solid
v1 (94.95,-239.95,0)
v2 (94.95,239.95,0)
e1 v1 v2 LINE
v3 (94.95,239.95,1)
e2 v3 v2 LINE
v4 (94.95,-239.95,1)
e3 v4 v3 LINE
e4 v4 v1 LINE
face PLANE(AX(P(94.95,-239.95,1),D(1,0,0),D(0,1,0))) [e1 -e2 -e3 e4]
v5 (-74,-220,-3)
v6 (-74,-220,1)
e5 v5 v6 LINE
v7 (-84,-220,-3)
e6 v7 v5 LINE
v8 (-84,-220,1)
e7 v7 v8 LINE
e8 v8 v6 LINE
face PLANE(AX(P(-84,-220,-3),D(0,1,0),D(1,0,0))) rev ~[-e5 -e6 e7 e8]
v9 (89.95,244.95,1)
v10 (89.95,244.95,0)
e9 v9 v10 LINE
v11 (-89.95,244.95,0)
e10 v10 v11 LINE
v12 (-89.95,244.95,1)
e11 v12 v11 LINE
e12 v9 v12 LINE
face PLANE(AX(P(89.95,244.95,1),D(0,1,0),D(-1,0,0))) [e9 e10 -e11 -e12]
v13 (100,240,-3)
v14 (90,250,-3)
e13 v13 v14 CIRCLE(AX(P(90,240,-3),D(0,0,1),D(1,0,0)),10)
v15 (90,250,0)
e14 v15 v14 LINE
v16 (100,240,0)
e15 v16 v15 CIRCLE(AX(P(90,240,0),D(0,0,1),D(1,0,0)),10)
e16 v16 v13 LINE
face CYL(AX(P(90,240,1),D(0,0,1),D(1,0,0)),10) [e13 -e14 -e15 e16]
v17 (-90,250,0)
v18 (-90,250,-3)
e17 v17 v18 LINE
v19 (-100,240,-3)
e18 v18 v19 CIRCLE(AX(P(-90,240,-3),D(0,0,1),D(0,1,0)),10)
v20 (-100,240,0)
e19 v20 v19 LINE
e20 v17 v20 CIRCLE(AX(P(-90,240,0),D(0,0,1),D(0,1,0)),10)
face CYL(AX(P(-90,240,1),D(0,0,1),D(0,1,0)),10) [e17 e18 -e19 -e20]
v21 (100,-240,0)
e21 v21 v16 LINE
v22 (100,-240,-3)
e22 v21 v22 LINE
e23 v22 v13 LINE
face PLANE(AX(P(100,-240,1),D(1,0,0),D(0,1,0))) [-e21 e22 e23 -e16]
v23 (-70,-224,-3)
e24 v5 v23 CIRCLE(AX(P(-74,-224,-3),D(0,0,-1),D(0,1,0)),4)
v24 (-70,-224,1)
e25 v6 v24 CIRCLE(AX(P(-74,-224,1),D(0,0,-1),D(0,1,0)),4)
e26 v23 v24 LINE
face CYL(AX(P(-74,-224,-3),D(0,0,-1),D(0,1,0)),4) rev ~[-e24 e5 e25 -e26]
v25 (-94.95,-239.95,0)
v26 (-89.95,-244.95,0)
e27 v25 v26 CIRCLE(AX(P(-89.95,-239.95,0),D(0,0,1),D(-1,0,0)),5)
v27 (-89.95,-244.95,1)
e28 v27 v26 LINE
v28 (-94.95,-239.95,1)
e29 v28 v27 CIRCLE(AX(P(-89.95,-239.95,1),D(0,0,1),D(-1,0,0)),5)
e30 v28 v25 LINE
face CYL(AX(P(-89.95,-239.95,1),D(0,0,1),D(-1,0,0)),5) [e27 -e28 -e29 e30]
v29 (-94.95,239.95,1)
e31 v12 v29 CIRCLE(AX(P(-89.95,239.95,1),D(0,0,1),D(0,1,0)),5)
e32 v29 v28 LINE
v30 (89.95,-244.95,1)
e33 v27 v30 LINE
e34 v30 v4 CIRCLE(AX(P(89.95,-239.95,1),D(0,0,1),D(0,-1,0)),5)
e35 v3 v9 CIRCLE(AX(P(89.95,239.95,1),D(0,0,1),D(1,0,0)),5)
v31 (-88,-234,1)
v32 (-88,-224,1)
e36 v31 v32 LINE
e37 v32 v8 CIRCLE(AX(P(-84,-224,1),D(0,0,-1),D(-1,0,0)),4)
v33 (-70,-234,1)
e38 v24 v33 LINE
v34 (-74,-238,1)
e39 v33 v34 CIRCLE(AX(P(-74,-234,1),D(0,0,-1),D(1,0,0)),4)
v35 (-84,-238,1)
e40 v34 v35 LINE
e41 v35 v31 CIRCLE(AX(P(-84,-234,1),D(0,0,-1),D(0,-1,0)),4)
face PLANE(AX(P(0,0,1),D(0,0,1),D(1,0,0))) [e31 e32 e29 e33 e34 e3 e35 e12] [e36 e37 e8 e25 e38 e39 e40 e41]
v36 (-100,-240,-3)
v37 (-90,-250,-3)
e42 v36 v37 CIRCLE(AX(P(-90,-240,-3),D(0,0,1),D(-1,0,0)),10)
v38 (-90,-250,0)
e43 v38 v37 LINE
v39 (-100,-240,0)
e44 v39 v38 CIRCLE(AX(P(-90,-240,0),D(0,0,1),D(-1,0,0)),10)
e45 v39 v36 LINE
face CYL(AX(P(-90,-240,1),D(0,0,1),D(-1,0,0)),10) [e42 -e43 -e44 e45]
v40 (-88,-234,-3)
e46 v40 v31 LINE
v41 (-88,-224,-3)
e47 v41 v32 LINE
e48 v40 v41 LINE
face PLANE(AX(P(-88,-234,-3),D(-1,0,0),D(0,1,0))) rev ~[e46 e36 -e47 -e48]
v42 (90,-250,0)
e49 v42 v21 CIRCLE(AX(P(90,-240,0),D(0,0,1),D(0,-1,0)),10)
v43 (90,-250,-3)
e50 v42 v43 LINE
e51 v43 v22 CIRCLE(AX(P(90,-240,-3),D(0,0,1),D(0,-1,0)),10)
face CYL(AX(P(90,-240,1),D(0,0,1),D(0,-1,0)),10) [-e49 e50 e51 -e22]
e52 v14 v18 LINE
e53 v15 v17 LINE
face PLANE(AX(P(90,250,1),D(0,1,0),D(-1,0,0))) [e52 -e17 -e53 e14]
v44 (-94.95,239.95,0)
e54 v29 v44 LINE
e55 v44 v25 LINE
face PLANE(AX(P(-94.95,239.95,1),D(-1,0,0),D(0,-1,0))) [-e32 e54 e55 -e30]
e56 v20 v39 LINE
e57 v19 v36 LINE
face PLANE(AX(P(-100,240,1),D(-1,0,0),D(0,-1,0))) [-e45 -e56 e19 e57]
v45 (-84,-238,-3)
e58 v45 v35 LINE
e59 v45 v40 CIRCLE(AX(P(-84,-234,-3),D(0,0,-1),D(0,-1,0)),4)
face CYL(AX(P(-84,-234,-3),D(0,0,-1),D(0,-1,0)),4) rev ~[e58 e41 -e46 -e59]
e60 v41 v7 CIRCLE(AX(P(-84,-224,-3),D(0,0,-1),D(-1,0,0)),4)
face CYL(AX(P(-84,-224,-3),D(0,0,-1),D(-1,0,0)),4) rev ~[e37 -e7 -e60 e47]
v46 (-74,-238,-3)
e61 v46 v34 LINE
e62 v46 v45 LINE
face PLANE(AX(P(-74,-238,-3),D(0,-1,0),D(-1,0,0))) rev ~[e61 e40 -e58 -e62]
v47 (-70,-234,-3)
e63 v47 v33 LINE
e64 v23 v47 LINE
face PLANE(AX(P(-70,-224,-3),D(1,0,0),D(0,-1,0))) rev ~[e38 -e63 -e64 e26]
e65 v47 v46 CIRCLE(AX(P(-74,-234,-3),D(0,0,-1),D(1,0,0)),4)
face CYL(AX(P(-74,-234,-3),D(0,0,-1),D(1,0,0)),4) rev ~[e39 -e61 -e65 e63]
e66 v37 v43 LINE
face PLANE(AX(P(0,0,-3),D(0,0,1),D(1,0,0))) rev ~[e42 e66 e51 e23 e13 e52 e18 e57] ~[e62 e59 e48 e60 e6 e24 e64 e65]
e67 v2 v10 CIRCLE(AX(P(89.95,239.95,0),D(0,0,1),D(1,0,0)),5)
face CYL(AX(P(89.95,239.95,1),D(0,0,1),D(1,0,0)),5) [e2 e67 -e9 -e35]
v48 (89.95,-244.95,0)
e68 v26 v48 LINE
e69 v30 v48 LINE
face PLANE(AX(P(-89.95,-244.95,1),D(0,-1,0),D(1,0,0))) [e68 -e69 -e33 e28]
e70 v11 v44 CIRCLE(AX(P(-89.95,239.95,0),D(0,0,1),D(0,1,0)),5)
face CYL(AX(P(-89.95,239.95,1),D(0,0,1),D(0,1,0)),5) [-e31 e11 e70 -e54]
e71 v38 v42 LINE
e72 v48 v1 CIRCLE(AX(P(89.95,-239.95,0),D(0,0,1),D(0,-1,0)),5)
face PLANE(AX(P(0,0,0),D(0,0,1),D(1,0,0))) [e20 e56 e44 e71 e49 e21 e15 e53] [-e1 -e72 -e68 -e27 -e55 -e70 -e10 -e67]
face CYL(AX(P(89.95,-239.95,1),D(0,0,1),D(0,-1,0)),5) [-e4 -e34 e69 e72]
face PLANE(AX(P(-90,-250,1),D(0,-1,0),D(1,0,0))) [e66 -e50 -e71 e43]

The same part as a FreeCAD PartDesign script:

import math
import FreeCAD as App
import Part
import Sketcher

doc = App.newDocument("Part")
body = doc.addObject("PartDesign::Body", "Body")

# Sketch on XY plane
sketch1 = body.newObject("Sketcher::SketchObject", "Sketch")
sketch1.AttachmentSupport = (doc.getObject("XY_Plane"), [""])
sketch1.MapMode = "FlatFace"
sketch1.addGeometry(Part.LineSegment(App.Vector(-100, 240, 0), App.Vector(-100, -240, 0)), False)
sketch1.addGeometry(Part.ArcOfCircle(Part.Circle(App.Vector(-90, -240, 0), App.Vector(0, 0, 1), 10), math.radians(180), math.radians(270)), False)
sketch1.addGeometry(Part.LineSegment(App.Vector(-90, -250, 0), App.Vector(90, -250, 0)), False)
sketch1.addGeometry(Part.ArcOfCircle(Part.Circle(App.Vector(90, -240, 0), App.Vector(0, 0, 1), 10), math.radians(-90), math.radians(0)), False)
sketch1.addGeometry(Part.LineSegment(App.Vector(100, -240, 0), App.Vector(100, 240, 0)), False)
sketch1.addGeometry(Part.ArcOfCircle(Part.Circle(App.Vector(90, 240, 0), App.Vector(0, 0, 1), 10), math.radians(0), math.radians(90)), False)
sketch1.addGeometry(Part.LineSegment(App.Vector(90, 250, 0), App.Vector(-90, 250, 0)), False)
sketch1.addGeometry(Part.ArcOfCircle(Part.Circle(App.Vector(-90, 240, 0), App.Vector(0, 0, 1), 10), math.radians(90), math.radians(180)), False)
sketch1.addConstraint(Sketcher.Constraint("Tangent", 0, 2, 1, 1))
sketch1.addConstraint(Sketcher.Constraint("Tangent", 1, 2, 2, 1))
sketch1.addConstraint(Sketcher.Constraint("Tangent", 2, 2, 3, 1))
sketch1.addConstraint(Sketcher.Constraint("Tangent", 3, 2, 4, 1))
sketch1.addConstraint(Sketcher.Constraint("Tangent", 4, 2, 5, 1))
sketch1.addConstraint(Sketcher.Constraint("Tangent", 5, 2, 6, 1))
sketch1.addConstraint(Sketcher.Constraint("Tangent", 6, 2, 7, 1))
sketch1.addConstraint(Sketcher.Constraint("Tangent", 7, 2, 0, 1))
sketch1.addConstraint(Sketcher.Constraint("Vertical", 0))
sketch1.addConstraint(Sketcher.Constraint("Horizontal", 2))
sketch1.addConstraint(Sketcher.Constraint("Vertical", 4))
sketch1.addConstraint(Sketcher.Constraint("Horizontal", 6))
sketch1.addConstraint(Sketcher.Constraint("Equal", 1, 3))
sketch1.addConstraint(Sketcher.Constraint("Equal", 3, 5))
sketch1.addConstraint(Sketcher.Constraint("Equal", 5, 7))
sketch1.addConstraint(Sketcher.Constraint("Symmetric", 1, 3, 5, 3, -1, 1))
sketch1.addConstraint(Sketcher.Constraint("Radius", 1, 10.0))
sketch1.addConstraint(Sketcher.Constraint("DistanceX", 2, 1, 2, 2, 180.0))
sketch1.addConstraint(Sketcher.Constraint("DistanceY", 0, 2, 0, 1, 480.0))
pad1 = body.newObject("PartDesign::Pad", "Pad")
pad1.Profile = sketch1
pad1.Length = 4
pad1.Reversed = True

# Sketch on XY plane
sketch2 = body.newObject("Sketcher::SketchObject", "Sketch001")
sketch2.AttachmentSupport = (doc.getObject("XY_Plane"), [""])
sketch2.MapMode = "FlatFace"
sketch2.addGeometry(Part.LineSegment(App.Vector(-100, 240, 0), App.Vector(-100, -240, 0)), False)
sketch2.addGeometry(Part.ArcOfCircle(Part.Circle(App.Vector(-90, -240, 0), App.Vector(0, 0, 1), 10), math.radians(180), math.radians(270)), False)
sketch2.addGeometry(Part.LineSegment(App.Vector(-90, -250, 0), App.Vector(90, -250, 0)), False)
sketch2.addGeometry(Part.ArcOfCircle(Part.Circle(App.Vector(90, -240, 0), App.Vector(0, 0, 1), 10), math.radians(-90), math.radians(0)), False)
sketch2.addGeometry(Part.LineSegment(App.Vector(100, -240, 0), App.Vector(100, 240, 0)), False)
sketch2.addGeometry(Part.ArcOfCircle(Part.Circle(App.Vector(90, 240, 0), App.Vector(0, 0, 1), 10), math.radians(0), math.radians(90)), False)
sketch2.addGeometry(Part.LineSegment(App.Vector(90, 250, 0), App.Vector(-90, 250, 0)), False)
sketch2.addGeometry(Part.ArcOfCircle(Part.Circle(App.Vector(-90, 240, 0), App.Vector(0, 0, 1), 10), math.radians(90), math.radians(180)), False)
sketch2.addGeometry(Part.LineSegment(App.Vector(-95, -240, 0), App.Vector(-95, 240, 0)), False)
sketch2.addGeometry(Part.ArcOfCircle(Part.Circle(App.Vector(-90, 240, 0), App.Vector(0, 0, 1), 5), math.radians(90), math.radians(180)), False)
sketch2.addGeometry(Part.LineSegment(App.Vector(-90, 245, 0), App.Vector(90, 245, 0)), False)
sketch2.addGeometry(Part.ArcOfCircle(Part.Circle(App.Vector(90, 240, 0), App.Vector(0, 0, 1), 5), math.radians(0), math.radians(90)), False)
sketch2.addGeometry(Part.LineSegment(App.Vector(95, 240, 0), App.Vector(95, -240, 0)), False)
sketch2.addGeometry(Part.ArcOfCircle(Part.Circle(App.Vector(90, -240, 0), App.Vector(0, 0, 1), 5), math.radians(-90), math.radians(0)), False)
sketch2.addGeometry(Part.LineSegment(App.Vector(90, -245, 0), App.Vector(-90, -245, 0)), False)
sketch2.addGeometry(Part.ArcOfCircle(Part.Circle(App.Vector(-90, -240, 0), App.Vector(0, 0, 1), 5), math.radians(180), math.radians(270)), False)
sketch2.addConstraint(Sketcher.Constraint("Tangent", 0, 2, 1, 1))
sketch2.addConstraint(Sketcher.Constraint("Tangent", 1, 2, 2, 1))
sketch2.addConstraint(Sketcher.Constraint("Tangent", 2, 2, 3, 1))
sketch2.addConstraint(Sketcher.Constraint("Tangent", 3, 2, 4, 1))
sketch2.addConstraint(Sketcher.Constraint("Tangent", 4, 2, 5, 1))
sketch2.addConstraint(Sketcher.Constraint("Tangent", 5, 2, 6, 1))
sketch2.addConstraint(Sketcher.Constraint("Tangent", 6, 2, 7, 1))
sketch2.addConstraint(Sketcher.Constraint("Tangent", 7, 2, 0, 1))
sketch2.addConstraint(Sketcher.Constraint("Tangent", 8, 2, 9, 2))
sketch2.addConstraint(Sketcher.Constraint("Tangent", 9, 1, 10, 1))
sketch2.addConstraint(Sketcher.Constraint("Tangent", 10, 2, 11, 2))
sketch2.addConstraint(Sketcher.Constraint("Tangent", 11, 1, 12, 1))
sketch2.addConstraint(Sketcher.Constraint("Tangent", 12, 2, 13, 2))
sketch2.addConstraint(Sketcher.Constraint("Tangent", 13, 1, 14, 1))
sketch2.addConstraint(Sketcher.Constraint("Tangent", 14, 2, 15, 2))
sketch2.addConstraint(Sketcher.Constraint("Tangent", 15, 1, 8, 1))
sketch2.addConstraint(Sketcher.Constraint("Vertical", 0))
sketch2.addConstraint(Sketcher.Constraint("Horizontal", 2))
sketch2.addConstraint(Sketcher.Constraint("Vertical", 4))
sketch2.addConstraint(Sketcher.Constraint("Horizontal", 6))
sketch2.addConstraint(Sketcher.Constraint("Vertical", 8))
sketch2.addConstraint(Sketcher.Constraint("Horizontal", 10))
sketch2.addConstraint(Sketcher.Constraint("Vertical", 12))
sketch2.addConstraint(Sketcher.Constraint("Horizontal", 14))
sketch2.addConstraint(Sketcher.Constraint("Equal", 1, 3))
sketch2.addConstraint(Sketcher.Constraint("Equal", 3, 5))
sketch2.addConstraint(Sketcher.Constraint("Equal", 5, 7))
sketch2.addConstraint(Sketcher.Constraint("Equal", 9, 11))
sketch2.addConstraint(Sketcher.Constraint("Equal", 11, 13))
sketch2.addConstraint(Sketcher.Constraint("Equal", 13, 15))
sketch2.addConstraint(Sketcher.Constraint("Symmetric", 1, 3, 5, 3, -1, 1))
sketch2.addConstraint(Sketcher.Constraint("Symmetric", 9, 3, 13, 3, -1, 1))
sketch2.addConstraint(Sketcher.Constraint("Radius", 1, 10.0))
sketch2.addConstraint(Sketcher.Constraint("Radius", 9, 5.0))
sketch2.addConstraint(Sketcher.Constraint("DistanceX", 2, 1, 2, 2, 180.0))
sketch2.addConstraint(Sketcher.Constraint("DistanceY", 0, 2, 0, 1, 480.0))
sketch2.addConstraint(Sketcher.Constraint("DistanceX", 10, 1, 10, 2, 179.9))
sketch2.addConstraint(Sketcher.Constraint("DistanceY", 8, 1, 8, 2, 479.9))
pocket1 = body.newObject("PartDesign::Pocket", "Pocket")
pocket1.Profile = sketch2
pocket1.Length = 1

# Sketch on XY plane
sketch3 = body.newObject("Sketcher::SketchObject", "Sketch002")
sketch3.AttachmentSupport = (doc.getObject("XY_Plane"), [""])
sketch3.MapMode = "FlatFace"
sketch3.AttachmentOffset = App.Placement(App.Vector(0, 0, -4), App.Rotation())
sketch3.addGeometry(Part.LineSegment(App.Vector(-88, -234, 0), App.Vector(-88, -224, 0)), False)
sketch3.addGeometry(Part.ArcOfCircle(Part.Circle(App.Vector(-84, -224, 0), App.Vector(0, 0, 1), 4), math.radians(90), math.radians(180)), False)
sketch3.addGeometry(Part.LineSegment(App.Vector(-84, -220, 0), App.Vector(-74, -220, 0)), False)
sketch3.addGeometry(Part.ArcOfCircle(Part.Circle(App.Vector(-74, -224, 0), App.Vector(0, 0, 1), 4), math.radians(0), math.radians(90)), False)
sketch3.addGeometry(Part.LineSegment(App.Vector(-70, -224, 0), App.Vector(-70, -234, 0)), False)
sketch3.addGeometry(Part.ArcOfCircle(Part.Circle(App.Vector(-74, -234, 0), App.Vector(0, 0, 1), 4), math.radians(-90), math.radians(0)), False)
sketch3.addGeometry(Part.LineSegment(App.Vector(-74, -238, 0), App.Vector(-84, -238, 0)), False)
sketch3.addGeometry(Part.ArcOfCircle(Part.Circle(App.Vector(-84, -234, 0), App.Vector(0, 0, 1), 4), math.radians(180), math.radians(270)), False)
sketch3.addConstraint(Sketcher.Constraint("Tangent", 0, 2, 1, 2))
sketch3.addConstraint(Sketcher.Constraint("Tangent", 1, 1, 2, 1))
sketch3.addConstraint(Sketcher.Constraint("Tangent", 2, 2, 3, 2))
sketch3.addConstraint(Sketcher.Constraint("Tangent", 3, 1, 4, 1))
sketch3.addConstraint(Sketcher.Constraint("Tangent", 4, 2, 5, 2))
sketch3.addConstraint(Sketcher.Constraint("Tangent", 5, 1, 6, 1))
sketch3.addConstraint(Sketcher.Constraint("Tangent", 6, 2, 7, 2))
sketch3.addConstraint(Sketcher.Constraint("Tangent", 7, 1, 0, 1))
sketch3.addConstraint(Sketcher.Constraint("Vertical", 0))
sketch3.addConstraint(Sketcher.Constraint("Horizontal", 2))
sketch3.addConstraint(Sketcher.Constraint("Vertical", 4))
sketch3.addConstraint(Sketcher.Constraint("Horizontal", 6))
sketch3.addConstraint(Sketcher.Constraint("Equal", 1, 3))
sketch3.addConstraint(Sketcher.Constraint("Equal", 3, 5))
sketch3.addConstraint(Sketcher.Constraint("Equal", 5, 7))
sketch3.addConstraint(Sketcher.Constraint("Equal", 6, 0))
sketch3.addConstraint(Sketcher.Constraint("Radius", 1, 4.0))
sketch3.addConstraint(Sketcher.Constraint("DistanceX", 2, 1, 2, 2, 10.0))
sketch3.addConstraint(Sketcher.Constraint("DistanceX", 1, 3, -1, 1, 84.0))
sketch3.addConstraint(Sketcher.Constraint("DistanceY", 1, 3, -1, 1, 224.0))
pocket2 = body.newObject("PartDesign::Pocket", "Pocket001")
pocket2.Profile = sketch3
pocket2.Length = 4
pocket2.Reversed = True
body2 = doc.addObject("PartDesign::Body", "Body001")
doc.recompute()

body.Placement = App.Placement(App.Vector(0, 0, 1), App.Rotation(App.Vector(0, 0, 1), 0))
boolean = body2.newObject("PartDesign::Boolean", "Boolean")
boolean.Type = "Fuse"
boolean.addObjects([body])

doc.recompute()
